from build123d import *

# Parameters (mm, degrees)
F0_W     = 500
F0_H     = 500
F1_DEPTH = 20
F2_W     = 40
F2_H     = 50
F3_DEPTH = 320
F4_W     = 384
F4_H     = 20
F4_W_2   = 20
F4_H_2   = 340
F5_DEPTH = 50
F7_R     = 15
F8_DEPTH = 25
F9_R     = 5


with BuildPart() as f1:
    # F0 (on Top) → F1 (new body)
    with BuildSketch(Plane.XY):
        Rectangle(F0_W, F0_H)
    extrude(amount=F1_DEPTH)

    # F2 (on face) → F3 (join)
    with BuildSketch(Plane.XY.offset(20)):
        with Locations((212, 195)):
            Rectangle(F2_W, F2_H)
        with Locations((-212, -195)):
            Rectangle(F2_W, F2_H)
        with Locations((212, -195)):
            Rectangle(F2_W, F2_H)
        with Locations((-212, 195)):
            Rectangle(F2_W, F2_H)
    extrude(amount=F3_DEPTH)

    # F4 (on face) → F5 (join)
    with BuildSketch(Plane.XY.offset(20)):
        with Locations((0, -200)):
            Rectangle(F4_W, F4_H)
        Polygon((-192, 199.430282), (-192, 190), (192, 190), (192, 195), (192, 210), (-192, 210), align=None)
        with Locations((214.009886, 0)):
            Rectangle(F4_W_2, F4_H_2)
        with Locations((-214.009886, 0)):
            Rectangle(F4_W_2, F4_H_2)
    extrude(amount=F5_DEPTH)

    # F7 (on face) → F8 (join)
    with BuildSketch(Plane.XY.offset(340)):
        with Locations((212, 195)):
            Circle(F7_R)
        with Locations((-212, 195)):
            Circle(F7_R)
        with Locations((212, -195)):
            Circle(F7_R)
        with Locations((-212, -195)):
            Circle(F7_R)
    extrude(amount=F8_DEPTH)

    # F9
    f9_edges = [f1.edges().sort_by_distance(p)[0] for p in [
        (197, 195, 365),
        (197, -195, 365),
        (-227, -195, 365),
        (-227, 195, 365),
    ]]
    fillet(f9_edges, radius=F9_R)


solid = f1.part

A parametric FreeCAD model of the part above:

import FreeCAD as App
import Part
import Sketcher
Q = App.Units.Quantity


def edges_at(feature, points):
    """Names of the edges that pass closest to the given points."""
    edges = feature.Shape.Edges
    near = lambda p: min(range(len(edges)), key=lambda i: edges[i].distToShape(Part.Vertex(*p))[0])
    return sorted({f"Edge{near(p) + 1}" for p in points})

doc = App.newDocument("Part")
body = doc.addObject("PartDesign::Body", "Body")

# Sketch on XY plane
sketch1 = body.newObject("Sketcher::SketchObject", "Sketch")
sketch1.AttachmentSupport = (doc.getObject("XY_Plane"), [""])
sketch1.MapMode = "FlatFace"
sketch1.addGeometry([
    Part.LineSegment(App.Vector(-250, 250, 0), App.Vector(-250, -250, 0)),
    Part.LineSegment(App.Vector(-250, -250, 0), App.Vector(250, -250, 0)),
    Part.LineSegment(App.Vector(250, -250, 0), App.Vector(250, 250, 0)),
    Part.LineSegment(App.Vector(250, 250, 0), App.Vector(-250, 250, 0)),
], False)
sketch1.addConstraint([
    Sketcher.Constraint("Coincident", 0, 2, 1, 1),
    Sketcher.Constraint("Coincident", 1, 2, 2, 1),
    Sketcher.Constraint("Coincident", 2, 2, 3, 1),
    Sketcher.Constraint("Coincident", 3, 2, 0, 1),
    Sketcher.Constraint("Vertical", 0),
    Sketcher.Constraint("Horizontal", 1),
    Sketcher.Constraint("Vertical", 2),
    Sketcher.Constraint("Horizontal", 3),
    Sketcher.Constraint("Symmetric", 0, 2, 2, 2, -1, 1),
    Sketcher.Constraint("Equal", 3, 0),
    Sketcher.Constraint("DistanceX", 1, 1, 1, 2, Q("500 mm")),
])
pad1 = body.newObject("PartDesign::Pad", "Pad")
pad1.Profile = sketch1
pad1.Length = 20

# Sketch on XY plane
sketch2 = body.newObject("Sketcher::SketchObject", "Sketch001")
sketch2.AttachmentSupport = (doc.getObject("XY_Plane"), [""])
sketch2.MapMode = "FlatFace"
sketch2.AttachmentOffset = App.Placement(App.Vector(0, 0, 20), App.Rotation())
sketch2.addGeometry([
    Part.LineSegment(App.Vector(192, 220, 0), App.Vector(192, 170, 0)),  # 0
    Part.LineSegment(App.Vector(192, 170, 0), App.Vector(232, 170, 0)),  # 1
    Part.LineSegment(App.Vector(232, 170, 0), App.Vector(232, 220, 0)),  # 2
    Part.LineSegment(App.Vector(232, 220, 0), App.Vector(192, 220, 0)),  # 3
    Part.LineSegment(App.Vector(-232, -170, 0), App.Vector(-232, -220, 0)),  # 4
    Part.LineSegment(App.Vector(-232, -220, 0), App.Vector(-192, -220, 0)),  # 5
    Part.LineSegment(App.Vector(-192, -220, 0), App.Vector(-192, -170, 0)),  # 6
    Part.LineSegment(App.Vector(-192, -170, 0), App.Vector(-232, -170, 0)),  # 7
    Part.LineSegment(App.Vector(192, -170, 0), App.Vector(192, -220, 0)),  # 8
    Part.LineSegment(App.Vector(192, -220, 0), App.Vector(232, -220, 0)),  # 9
    Part.LineSegment(App.Vector(232, -220, 0), App.Vector(232, -170, 0)),  # 10
    Part.LineSegment(App.Vector(232, -170, 0), App.Vector(192, -170, 0)),  # 11
    Part.LineSegment(App.Vector(-232, 220, 0), App.Vector(-232, 170, 0)),  # 12
    Part.LineSegment(App.Vector(-232, 170, 0), App.Vector(-192, 170, 0)),  # 13
    Part.LineSegment(App.Vector(-192, 170, 0), App.Vector(-192, 220, 0)),  # 14
    Part.LineSegment(App.Vector(-192, 220, 0), App.Vector(-232, 220, 0)),  # 15
], False)
sketch2.addConstraint([
    Sketcher.Constraint("Coincident", 0, 2, 1, 1),
    Sketcher.Constraint("Coincident", 1, 2, 2, 1),
    Sketcher.Constraint("Coincident", 2, 2, 3, 1),
    Sketcher.Constraint("Coincident", 3, 2, 0, 1),
    Sketcher.Constraint("Coincident", 4, 2, 5, 1),
    Sketcher.Constraint("Coincident", 5, 2, 6, 1),
    Sketcher.Constraint("Coincident", 6, 2, 7, 1),
    Sketcher.Constraint("Coincident", 7, 2, 4, 1),
    Sketcher.Constraint("Coincident", 8, 2, 9, 1),
    Sketcher.Constraint("Coincident", 9, 2, 10, 1),
    Sketcher.Constraint("Coincident", 10, 2, 11, 1),
    Sketcher.Constraint("Coincident", 11, 2, 8, 1),
    Sketcher.Constraint("Coincident", 12, 2, 13, 1),
    Sketcher.Constraint("Coincident", 13, 2, 14, 1),
    Sketcher.Constraint("Coincident", 14, 2, 15, 1),
    Sketcher.Constraint("Coincident", 15, 2, 12, 1),
    Sketcher.Constraint("Vertical", 0),
    Sketcher.Constraint("Horizontal", 1),
    Sketcher.Constraint("Vertical", 2),
    Sketcher.Constraint("Horizontal", 3),
    Sketcher.Constraint("Vertical", 4),
    Sketcher.Constraint("Horizontal", 5),
    Sketcher.Constraint("Vertical", 6),
    Sketcher.Constraint("Horizontal", 7),
    Sketcher.Constraint("Vertical", 8),
    Sketcher.Constraint("Horizontal", 9),
    Sketcher.Constraint("Vertical", 10),
    Sketcher.Constraint("Horizontal", 11),
    Sketcher.Constraint("Vertical", 12),
    Sketcher.Constraint("Horizontal", 13),
    Sketcher.Constraint("Vertical", 14),
    Sketcher.Constraint("Horizontal", 15),
    Sketcher.Constraint("Symmetric", 2, 2, 4, 2, -1, 1),
    Sketcher.Constraint("Symmetric", 0, 2, 6, 2, -1, 1),
    Sketcher.Constraint("Symmetric", 10, 2, 12, 2, -1, 1),
    Sketcher.Constraint("Symmetric", 8, 2, 14, 2, -1, 1),
    Sketcher.Constraint("Symmetric", 5, 2, 8, 2, -2),
    Sketcher.Constraint("Symmetric", 7, 2, 10, 2, -2),
    Sketcher.Constraint("DistanceX", 1, 1, 1, 2, Q("40 mm")),
    Sketcher.Constraint("DistanceY", 0, 2, 0, 1, Q("50 mm")),
    Sketcher.Constraint("DistanceX", -1, 1, 0, 2, Q("192 mm")),
    Sketcher.Constraint("DistanceY", -1, 1, 0, 2, Q("170 mm")),
])
pad2 = body.newObject("PartDesign::Pad", "Pad001")
pad2.Profile = sketch2
pad2.Length = 320

# Sketch on XY plane
sketch3 = body.newObject("Sketcher::SketchObject", "Sketch002")
sketch3.AttachmentSupport = (doc.getObject("XY_Plane"), [""])
sketch3.MapMode = "FlatFace"
sketch3.AttachmentOffset = App.Placement(App.Vector(0, 0, 20), App.Rotation())
sketch3.addGeometry([
    Part.LineSegment(App.Vector(-192, -190, 0), App.Vector(-192, -210, 0)),  # 0
    Part.LineSegment(App.Vector(-192, -210, 0), App.Vector(192, -210, 0)),  # 1
    Part.LineSegment(App.Vector(192, -210, 0), App.Vector(192, -190, 0)),  # 2
    Part.LineSegment(App.Vector(192, -190, 0), App.Vector(-192, -190, 0)),  # 3
    Part.LineSegment(App.Vector(-192, 190, 0), App.Vector(192, 190, 0)),  # 4
    Part.LineSegment(App.Vector(192, 190, 0), App.Vector(192, 210, 0)),  # 5
    Part.LineSegment(App.Vector(192, 210, 0), App.Vector(-192, 210, 0)),  # 6
    Part.LineSegment(App.Vector(-192, 210, 0), App.Vector(-192, 190, 0)),  # 7
    Part.LineSegment(App.Vector(204.009886, 170, 0), App.Vector(204.009886, -170, 0)),  # 8
    Part.LineSegment(App.Vector(204.009886, -170, 0), App.Vector(224.009886, -170, 0)),  # 9
    Part.LineSegment(App.Vector(224.009886, -170, 0), App.Vector(224.009886, 170, 0)),  # 10
    Part.LineSegment(App.Vector(224.009886, 170, 0), App.Vector(204.009886, 170, 0)),  # 11
    Part.LineSegment(App.Vector(-224.009886, 170, 0), App.Vector(-224.009886, -170, 0)),  # 12
    Part.LineSegment(App.Vector(-224.009886, -170, 0), App.Vector(-204.009886, -170, 0)),  # 13
    Part.LineSegment(App.Vector(-204.009886, -170, 0), App.Vector(-204.009886, 170, 0)),  # 14
    Part.LineSegment(App.Vector(-204.009886, 170, 0), App.Vector(-224.009886, 170, 0)),  # 15
], False)
sketch3.addConstraint([
    Sketcher.Constraint("Coincident", 0, 2, 1, 1),
    Sketcher.Constraint("Coincident", 1, 2, 2, 1),
    Sketcher.Constraint("Coincident", 2, 2, 3, 1),
    Sketcher.Constraint("Coincident", 3, 2, 0, 1),
    Sketcher.Constraint("Coincident", 4, 2, 5, 1),
    Sketcher.Constraint("Coincident", 5, 2, 6, 1),
    Sketcher.Constraint("Coincident", 6, 2, 7, 1),
    Sketcher.Constraint("Coincident", 7, 2, 4, 1),
    Sketcher.Constraint("Coincident", 8, 2, 9, 1),
    Sketcher.Constraint("Coincident", 9, 2, 10, 1),
    Sketcher.Constraint("Coincident", 10, 2, 11, 1),
    Sketcher.Constraint("Coincident", 11, 2, 8, 1),
    Sketcher.Constraint("Coincident", 12, 2, 13, 1),
    Sketcher.Constraint("Coincident", 13, 2, 14, 1),
    Sketcher.Constraint("Coincident", 14, 2, 15, 1),
    Sketcher.Constraint("Coincident", 15, 2, 12, 1),
    Sketcher.Constraint("Vertical", 0),
    Sketcher.Constraint("Horizontal", 1),
    Sketcher.Constraint("Vertical", 2),
    Sketcher.Constraint("Horizontal", 3),
    Sketcher.Constraint("Horizontal", 4),
    Sketcher.Constraint("Vertical", 5),
    Sketcher.Constraint("Horizontal", 6),
    Sketcher.Constraint("Vertical", 7),
    Sketcher.Constraint("Vertical", 8),
    Sketcher.Constraint("Horizontal", 9),
    Sketcher.Constraint("Vertical", 10),
    Sketcher.Constraint("Horizontal", 11),
    Sketcher.Constraint("Vertical", 12),
    Sketcher.Constraint("Horizontal", 13),
    Sketcher.Constraint("Vertical", 14),
    Sketcher.Constraint("Horizontal", 15),
    Sketcher.Constraint("Symmetric", 3, 2, 4, 2, -1, 1),
    Sketcher.Constraint("Symmetric", 1, 2, 6, 2, -1, 1),
    Sketcher.Constraint("Symmetric", 10, 2, 12, 2, -1, 1),
    Sketcher.Constraint("Symmetric", 8, 2, 14, 2, -1, 1),
    Sketcher.Constraint("Horizontal", 9, 2, 12, 2),
    Sketcher.Constraint("Vertical", 2, 2, 4, 2),
    Sketcher.Constraint("Equal", 15, 0),
    Sketcher.Constraint("DistanceX", 1, 1, 1, 2, Q("384 mm")),
    Sketcher.Constraint("DistanceX", 9, 1, 9, 2, Q("20 mm")),
    Sketcher.Constraint("DistanceY", 8, 2, 8, 1, Q("340 mm")),
    Sketcher.Constraint("DistanceY", 0, 2, -1, 1, Q("210 mm")),
    Sketcher.Constraint("DistanceX", -1, 1, 8, 2, Q("204.009886 mm")),
])
pad3 = body.newObject("PartDesign::Pad", "Pad002")
pad3.Profile = sketch3
pad3.Length = 50

# Sketch on XY plane
sketch4 = body.newObject("Sketcher::SketchObject", "Sketch003")
sketch4.AttachmentSupport = (doc.getObject("XY_Plane"), [""])
sketch4.MapMode = "FlatFace"
sketch4.AttachmentOffset = App.Placement(App.Vector(0, 0, 340), App.Rotation())
sketch4.addGeometry([
    Part.Circle(App.Vector(212, 195, 0), App.Vector(0, 0, 1), 15),
    Part.Circle(App.Vector(-212, 195, 0), App.Vector(0, 0, 1), 15),
    Part.Circle(App.Vector(212, -195, 0), App.Vector(0, 0, 1), 15),
    Part.Circle(App.Vector(-212, -195, 0), App.Vector(0, 0, 1), 15),
], False)
sketch4.addConstraint([
    Sketcher.Constraint("Equal", 0, 1),
    Sketcher.Constraint("Equal", 1, 2),
    Sketcher.Constraint("Equal", 2, 3),
    Sketcher.Constraint("Symmetric", 1, 3, 2, 3, -1, 1),
    Sketcher.Constraint("Symmetric", 0, 3, 3, 3, -1, 1),
    Sketcher.Constraint("Symmetric", 0, 3, 1, 3, -2),
    Sketcher.Constraint("Diameter", 0, Q("30 mm")),
    Sketcher.Constraint("DistanceX", -1, 1, 0, 3, Q("212 mm")),
    Sketcher.Constraint("DistanceY", -1, 1, 0, 3, Q("195 mm")),
])
pad4 = body.newObject("PartDesign::Pad", "Pad003")
pad4.Profile = sketch4
pad4.Length = 25
doc.recompute()

fillet = body.newObject("PartDesign::Fillet", "Fillet")
fillet.Base = (pad4, edges_at(pad4, [
    (197, 195, 365),
    (197, -195, 365),
    (-227, -195, 365),
    (-227, 195, 365),
]))
fillet.Radius = 5

doc.recompute()
